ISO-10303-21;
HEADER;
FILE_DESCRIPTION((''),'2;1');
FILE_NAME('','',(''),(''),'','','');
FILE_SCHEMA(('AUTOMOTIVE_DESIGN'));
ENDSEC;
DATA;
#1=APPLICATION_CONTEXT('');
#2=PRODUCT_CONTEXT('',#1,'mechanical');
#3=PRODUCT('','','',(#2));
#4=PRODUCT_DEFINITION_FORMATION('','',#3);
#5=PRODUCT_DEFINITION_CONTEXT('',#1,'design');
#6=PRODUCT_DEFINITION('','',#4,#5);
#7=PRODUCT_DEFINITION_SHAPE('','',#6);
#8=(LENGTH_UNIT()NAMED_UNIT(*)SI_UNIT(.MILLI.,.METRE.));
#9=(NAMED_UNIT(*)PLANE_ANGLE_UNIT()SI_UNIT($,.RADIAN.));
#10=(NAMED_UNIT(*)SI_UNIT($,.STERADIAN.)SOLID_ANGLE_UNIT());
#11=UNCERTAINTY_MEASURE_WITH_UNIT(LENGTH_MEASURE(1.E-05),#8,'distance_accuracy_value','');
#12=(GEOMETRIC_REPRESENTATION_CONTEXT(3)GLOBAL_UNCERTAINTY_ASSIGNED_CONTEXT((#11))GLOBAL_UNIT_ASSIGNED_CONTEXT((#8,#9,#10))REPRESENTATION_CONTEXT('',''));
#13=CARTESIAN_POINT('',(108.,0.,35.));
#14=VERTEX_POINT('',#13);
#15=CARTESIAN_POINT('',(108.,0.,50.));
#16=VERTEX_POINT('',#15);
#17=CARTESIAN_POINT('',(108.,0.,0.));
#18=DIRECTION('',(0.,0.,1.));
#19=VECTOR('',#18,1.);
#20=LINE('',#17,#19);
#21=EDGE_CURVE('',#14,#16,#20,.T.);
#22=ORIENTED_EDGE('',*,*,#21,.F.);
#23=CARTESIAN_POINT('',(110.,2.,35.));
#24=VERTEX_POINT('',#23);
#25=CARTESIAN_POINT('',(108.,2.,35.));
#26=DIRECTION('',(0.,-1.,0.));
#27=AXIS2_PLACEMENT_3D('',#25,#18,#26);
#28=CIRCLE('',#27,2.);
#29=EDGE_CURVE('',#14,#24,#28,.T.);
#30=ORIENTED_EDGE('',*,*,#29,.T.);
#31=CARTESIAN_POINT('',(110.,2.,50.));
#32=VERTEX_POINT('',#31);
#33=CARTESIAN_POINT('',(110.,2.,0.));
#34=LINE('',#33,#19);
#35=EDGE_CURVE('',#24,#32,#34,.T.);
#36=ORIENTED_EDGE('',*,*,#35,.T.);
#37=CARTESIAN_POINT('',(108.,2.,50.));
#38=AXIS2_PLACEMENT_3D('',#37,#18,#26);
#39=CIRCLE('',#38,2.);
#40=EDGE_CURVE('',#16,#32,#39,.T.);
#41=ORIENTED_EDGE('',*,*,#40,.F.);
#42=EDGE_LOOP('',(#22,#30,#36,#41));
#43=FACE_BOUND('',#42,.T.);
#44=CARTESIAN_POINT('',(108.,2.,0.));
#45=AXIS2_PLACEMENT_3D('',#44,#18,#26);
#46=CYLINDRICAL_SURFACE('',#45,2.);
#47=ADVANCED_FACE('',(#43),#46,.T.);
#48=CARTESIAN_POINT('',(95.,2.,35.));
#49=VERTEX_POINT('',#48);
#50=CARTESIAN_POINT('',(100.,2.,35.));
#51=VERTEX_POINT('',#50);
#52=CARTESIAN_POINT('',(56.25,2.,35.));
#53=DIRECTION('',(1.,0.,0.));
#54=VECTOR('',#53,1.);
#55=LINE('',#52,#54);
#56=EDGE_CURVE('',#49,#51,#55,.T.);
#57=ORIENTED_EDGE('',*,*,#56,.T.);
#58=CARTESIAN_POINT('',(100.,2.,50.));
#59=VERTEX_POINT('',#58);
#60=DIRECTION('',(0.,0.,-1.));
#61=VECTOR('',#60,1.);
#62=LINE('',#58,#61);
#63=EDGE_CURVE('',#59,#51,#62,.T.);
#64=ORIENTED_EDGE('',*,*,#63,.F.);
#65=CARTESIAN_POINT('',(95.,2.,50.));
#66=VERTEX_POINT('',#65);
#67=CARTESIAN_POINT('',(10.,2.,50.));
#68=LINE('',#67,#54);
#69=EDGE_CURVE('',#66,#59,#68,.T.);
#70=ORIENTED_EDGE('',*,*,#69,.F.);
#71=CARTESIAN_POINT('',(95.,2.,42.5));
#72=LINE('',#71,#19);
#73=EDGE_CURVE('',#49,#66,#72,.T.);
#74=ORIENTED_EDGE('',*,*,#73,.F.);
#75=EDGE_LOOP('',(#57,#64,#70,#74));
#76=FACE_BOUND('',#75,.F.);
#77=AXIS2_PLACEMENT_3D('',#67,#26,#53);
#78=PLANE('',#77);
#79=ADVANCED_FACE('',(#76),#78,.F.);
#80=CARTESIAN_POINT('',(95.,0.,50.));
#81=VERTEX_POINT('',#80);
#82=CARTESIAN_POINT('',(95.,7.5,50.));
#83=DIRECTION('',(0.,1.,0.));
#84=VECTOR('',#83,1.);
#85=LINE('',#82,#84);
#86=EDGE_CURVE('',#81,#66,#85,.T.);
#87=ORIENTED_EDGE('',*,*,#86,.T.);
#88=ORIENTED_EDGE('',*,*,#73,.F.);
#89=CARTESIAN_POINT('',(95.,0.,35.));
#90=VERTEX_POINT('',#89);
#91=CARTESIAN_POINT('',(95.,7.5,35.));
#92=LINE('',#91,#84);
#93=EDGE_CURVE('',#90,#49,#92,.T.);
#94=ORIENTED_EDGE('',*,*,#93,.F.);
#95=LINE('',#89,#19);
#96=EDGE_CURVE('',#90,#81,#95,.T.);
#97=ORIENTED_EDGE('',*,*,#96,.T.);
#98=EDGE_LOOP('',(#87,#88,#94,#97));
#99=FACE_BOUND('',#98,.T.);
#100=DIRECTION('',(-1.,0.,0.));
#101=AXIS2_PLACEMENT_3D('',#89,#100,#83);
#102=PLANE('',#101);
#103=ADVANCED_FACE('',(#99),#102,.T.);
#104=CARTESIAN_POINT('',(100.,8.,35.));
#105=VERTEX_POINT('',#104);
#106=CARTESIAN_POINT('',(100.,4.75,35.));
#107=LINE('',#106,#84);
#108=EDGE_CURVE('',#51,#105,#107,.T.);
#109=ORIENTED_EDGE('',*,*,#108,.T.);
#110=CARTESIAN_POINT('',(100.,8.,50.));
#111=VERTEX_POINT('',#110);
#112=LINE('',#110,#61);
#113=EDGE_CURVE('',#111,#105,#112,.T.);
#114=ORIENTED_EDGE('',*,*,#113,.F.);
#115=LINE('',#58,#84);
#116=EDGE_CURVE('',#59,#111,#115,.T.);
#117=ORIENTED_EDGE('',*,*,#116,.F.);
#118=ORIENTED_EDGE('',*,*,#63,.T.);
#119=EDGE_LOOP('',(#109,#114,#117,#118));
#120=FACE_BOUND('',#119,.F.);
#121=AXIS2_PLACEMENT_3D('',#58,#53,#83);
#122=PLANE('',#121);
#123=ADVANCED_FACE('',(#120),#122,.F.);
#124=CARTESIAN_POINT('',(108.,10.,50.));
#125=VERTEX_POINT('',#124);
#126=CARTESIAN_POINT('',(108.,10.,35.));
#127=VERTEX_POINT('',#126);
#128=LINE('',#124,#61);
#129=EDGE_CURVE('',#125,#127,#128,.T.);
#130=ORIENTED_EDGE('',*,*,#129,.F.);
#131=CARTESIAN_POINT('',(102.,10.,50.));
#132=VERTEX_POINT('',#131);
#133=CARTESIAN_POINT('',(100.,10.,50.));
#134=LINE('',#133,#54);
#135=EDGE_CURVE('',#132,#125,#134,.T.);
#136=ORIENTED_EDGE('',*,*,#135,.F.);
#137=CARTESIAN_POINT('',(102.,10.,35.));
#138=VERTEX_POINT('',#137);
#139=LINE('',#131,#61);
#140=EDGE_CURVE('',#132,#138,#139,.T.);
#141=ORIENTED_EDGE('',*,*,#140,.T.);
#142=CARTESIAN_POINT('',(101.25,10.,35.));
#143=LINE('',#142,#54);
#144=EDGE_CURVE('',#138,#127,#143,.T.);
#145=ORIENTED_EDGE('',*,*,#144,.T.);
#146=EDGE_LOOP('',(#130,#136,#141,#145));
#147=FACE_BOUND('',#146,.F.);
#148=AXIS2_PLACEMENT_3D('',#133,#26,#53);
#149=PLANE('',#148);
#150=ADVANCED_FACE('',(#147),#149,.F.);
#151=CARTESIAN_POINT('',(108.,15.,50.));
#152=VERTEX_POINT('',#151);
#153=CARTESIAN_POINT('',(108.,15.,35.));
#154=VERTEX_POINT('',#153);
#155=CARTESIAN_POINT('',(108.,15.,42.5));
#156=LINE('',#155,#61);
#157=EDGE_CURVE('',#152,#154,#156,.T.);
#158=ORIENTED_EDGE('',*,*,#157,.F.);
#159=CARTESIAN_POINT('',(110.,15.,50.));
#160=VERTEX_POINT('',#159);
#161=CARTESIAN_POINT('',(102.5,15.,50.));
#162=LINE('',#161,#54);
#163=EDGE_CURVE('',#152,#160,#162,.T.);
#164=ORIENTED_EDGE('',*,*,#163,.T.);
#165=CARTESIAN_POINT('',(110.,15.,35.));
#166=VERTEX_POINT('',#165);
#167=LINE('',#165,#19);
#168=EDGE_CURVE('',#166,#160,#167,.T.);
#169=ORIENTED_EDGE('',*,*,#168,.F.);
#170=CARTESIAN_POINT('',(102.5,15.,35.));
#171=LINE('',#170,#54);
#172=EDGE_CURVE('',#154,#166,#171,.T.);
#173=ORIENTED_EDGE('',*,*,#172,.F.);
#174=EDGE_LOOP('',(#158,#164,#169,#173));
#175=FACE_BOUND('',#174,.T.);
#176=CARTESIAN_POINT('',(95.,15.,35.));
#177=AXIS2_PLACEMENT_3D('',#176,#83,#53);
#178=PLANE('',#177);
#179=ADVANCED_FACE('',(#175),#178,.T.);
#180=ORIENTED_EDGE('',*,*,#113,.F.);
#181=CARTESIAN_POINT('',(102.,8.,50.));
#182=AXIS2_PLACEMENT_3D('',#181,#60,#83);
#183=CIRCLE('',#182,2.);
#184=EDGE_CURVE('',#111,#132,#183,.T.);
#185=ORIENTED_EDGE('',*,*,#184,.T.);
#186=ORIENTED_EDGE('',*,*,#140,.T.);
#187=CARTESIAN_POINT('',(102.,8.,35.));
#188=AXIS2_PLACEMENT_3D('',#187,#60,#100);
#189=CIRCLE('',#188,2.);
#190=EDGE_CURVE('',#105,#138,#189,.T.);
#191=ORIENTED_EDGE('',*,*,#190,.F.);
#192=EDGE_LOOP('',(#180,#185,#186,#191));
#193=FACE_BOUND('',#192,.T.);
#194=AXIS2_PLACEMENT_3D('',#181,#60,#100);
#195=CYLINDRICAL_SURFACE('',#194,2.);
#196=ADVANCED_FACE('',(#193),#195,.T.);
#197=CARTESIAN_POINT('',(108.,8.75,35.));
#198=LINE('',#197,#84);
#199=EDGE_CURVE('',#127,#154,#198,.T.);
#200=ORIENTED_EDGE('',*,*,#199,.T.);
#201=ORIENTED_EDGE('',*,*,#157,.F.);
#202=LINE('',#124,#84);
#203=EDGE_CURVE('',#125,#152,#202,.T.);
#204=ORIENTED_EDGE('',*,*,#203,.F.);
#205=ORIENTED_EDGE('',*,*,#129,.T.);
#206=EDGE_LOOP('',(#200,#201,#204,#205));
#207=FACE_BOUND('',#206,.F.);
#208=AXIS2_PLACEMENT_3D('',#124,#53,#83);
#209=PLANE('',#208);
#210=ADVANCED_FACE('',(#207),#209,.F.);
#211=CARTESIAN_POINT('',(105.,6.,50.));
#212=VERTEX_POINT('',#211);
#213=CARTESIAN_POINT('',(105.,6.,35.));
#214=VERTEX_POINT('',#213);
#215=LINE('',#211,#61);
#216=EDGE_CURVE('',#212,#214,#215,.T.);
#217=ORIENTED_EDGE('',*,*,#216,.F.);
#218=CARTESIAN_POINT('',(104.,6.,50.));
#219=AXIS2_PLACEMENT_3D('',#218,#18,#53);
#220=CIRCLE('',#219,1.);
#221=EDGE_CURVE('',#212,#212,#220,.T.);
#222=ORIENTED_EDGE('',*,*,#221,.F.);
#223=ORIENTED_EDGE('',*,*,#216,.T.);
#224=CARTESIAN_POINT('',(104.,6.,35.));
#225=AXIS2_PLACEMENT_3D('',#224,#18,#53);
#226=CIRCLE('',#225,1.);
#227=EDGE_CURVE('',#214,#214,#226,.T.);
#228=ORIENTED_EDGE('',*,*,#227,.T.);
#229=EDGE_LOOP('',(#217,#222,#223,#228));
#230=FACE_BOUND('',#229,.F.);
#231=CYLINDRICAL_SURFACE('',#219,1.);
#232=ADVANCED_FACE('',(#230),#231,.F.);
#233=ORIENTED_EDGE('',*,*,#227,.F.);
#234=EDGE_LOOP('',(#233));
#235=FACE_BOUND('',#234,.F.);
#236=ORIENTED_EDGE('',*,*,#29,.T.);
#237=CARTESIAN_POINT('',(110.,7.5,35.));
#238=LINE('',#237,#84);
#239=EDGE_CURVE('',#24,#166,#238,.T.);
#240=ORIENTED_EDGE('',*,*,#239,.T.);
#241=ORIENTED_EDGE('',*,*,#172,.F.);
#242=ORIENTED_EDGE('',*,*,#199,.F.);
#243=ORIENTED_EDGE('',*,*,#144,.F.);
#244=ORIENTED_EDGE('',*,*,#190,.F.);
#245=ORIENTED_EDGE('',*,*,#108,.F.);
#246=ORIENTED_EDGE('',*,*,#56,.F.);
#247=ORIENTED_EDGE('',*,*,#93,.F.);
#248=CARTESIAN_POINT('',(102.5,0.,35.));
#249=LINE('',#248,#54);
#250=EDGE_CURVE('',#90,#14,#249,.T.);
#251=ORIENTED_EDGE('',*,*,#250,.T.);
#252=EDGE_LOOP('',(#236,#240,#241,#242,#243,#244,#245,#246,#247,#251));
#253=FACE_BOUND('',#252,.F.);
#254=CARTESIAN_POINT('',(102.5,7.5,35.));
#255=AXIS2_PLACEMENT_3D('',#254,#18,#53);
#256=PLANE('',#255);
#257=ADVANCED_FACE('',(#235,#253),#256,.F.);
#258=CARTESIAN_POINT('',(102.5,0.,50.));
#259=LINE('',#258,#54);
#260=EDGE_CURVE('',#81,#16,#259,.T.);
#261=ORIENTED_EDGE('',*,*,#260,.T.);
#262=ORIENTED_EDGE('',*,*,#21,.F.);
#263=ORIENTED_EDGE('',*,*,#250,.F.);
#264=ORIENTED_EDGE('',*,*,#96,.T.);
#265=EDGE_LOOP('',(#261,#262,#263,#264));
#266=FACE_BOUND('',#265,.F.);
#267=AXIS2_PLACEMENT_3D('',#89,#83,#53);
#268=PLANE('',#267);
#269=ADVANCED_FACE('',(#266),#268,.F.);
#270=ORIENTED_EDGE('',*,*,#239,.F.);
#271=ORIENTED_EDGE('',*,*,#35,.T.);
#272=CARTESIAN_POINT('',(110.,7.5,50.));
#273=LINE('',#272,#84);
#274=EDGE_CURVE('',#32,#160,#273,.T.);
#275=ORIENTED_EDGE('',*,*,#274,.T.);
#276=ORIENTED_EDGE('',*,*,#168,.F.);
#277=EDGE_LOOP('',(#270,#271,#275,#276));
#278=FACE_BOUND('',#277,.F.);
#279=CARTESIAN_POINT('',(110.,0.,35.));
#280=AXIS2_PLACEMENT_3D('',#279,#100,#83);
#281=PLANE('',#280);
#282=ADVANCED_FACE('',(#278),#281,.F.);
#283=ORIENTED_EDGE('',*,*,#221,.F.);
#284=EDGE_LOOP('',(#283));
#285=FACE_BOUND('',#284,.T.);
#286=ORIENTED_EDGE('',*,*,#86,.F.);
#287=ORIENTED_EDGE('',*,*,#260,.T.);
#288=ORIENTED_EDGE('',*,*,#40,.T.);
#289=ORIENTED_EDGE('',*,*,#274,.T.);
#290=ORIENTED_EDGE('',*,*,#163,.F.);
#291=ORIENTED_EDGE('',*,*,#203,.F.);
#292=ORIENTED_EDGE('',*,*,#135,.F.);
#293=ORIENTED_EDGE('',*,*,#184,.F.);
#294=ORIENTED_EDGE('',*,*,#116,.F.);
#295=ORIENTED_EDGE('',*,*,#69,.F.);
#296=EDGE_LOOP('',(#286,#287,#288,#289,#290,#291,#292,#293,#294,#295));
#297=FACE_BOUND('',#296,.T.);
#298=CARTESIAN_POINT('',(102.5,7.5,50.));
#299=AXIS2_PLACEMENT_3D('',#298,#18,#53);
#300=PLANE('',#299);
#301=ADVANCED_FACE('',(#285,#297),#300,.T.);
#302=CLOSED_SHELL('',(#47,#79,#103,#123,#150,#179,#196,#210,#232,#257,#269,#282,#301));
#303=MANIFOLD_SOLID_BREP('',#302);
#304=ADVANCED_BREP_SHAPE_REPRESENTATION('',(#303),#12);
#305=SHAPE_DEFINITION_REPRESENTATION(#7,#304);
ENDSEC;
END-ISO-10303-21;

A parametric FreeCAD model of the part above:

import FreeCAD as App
import Part
import Sketcher

V = App.Vector
Q = App.Units.Quantity


def edges_at(feature, points):
    """Names of the edges that pass closest to the given points."""
    edges = feature.Shape.Edges
    near = lambda p: min(range(len(edges)), key=lambda i: edges[i].distToShape(Part.Vertex(*p))[0])
    return sorted({f"Edge{near(p) + 1}" for p in points})

doc = App.newDocument("Part")
params = doc.addObject("Spreadsheet::Sheet", "Params")
for row, (alias, value) in enumerate([
    ("sketch1_width", "110 mm"),
    ("sketch1_height", "80 mm"),
    ("pad1_length", "50 mm"),
    ("sketch2_diameter", "2 mm"),
    ("sketch2_width", "8 mm"),
    ("sketch2_width2", "90 mm"),
    ("sketch2_height", "60 mm"),
    ("pocket1_length", "48 mm"),
    ("fillet_radius", "2 mm"),
    ("fillet2_radius", "2 mm"),
    ("sketch3_diameter", "5.1 mm"),
    ("sketch3_width", "11.5 mm"),
    ("sketch3_height", "19.1 mm"),
    ("pocket2_length", "5 mm"),
    ("sketch4_diameter", "5.1 mm"),
    ("pocket3_length", "5 mm"),
    ("sketch5_width", "15 mm"),
    ("pad2_length", "15 mm"),
], start=1):
    params.set(f"A{row}", alias)
    params.set(f"B{row}", "=" + value)
    params.setAlias(f"B{row}", alias)

body = doc.addObject("PartDesign::Body", "Body")

# Sketch on XY plane
sketch1 = body.newObject("Sketcher::SketchObject", "Sketch")
sketch1.AttachmentSupport = (doc.getObject("XY_Plane"), [""])
sketch1.MapMode = "FlatFace"
sketch1.addGeometry(Part.LineSegment(V(0, 80, 0), V(0, 0, 0)), False)
sketch1.addGeometry(Part.LineSegment(V(0, 0, 0), V(110, 0, 0)), False)
sketch1.addGeometry(Part.LineSegment(V(110, 0, 0), V(110, 80, 0)), False)
sketch1.addGeometry(Part.LineSegment(V(110, 80, 0), V(0, 80, 0)), False)
sketch1.addConstraint(Sketcher.Constraint("Coincident", 0, 2, 1, 1))
sketch1.addConstraint(Sketcher.Constraint("Coincident", 1, 2, 2, 1))
sketch1.addConstraint(Sketcher.Constraint("Coincident", 2, 2, 3, 1))
sketch1.addConstraint(Sketcher.Constraint("Coincident", 3, 2, 0, 1))
sketch1.addConstraint(Sketcher.Constraint("Vertical", 0))
sketch1.addConstraint(Sketcher.Constraint("Horizontal", 1))
sketch1.addConstraint(Sketcher.Constraint("Vertical", 2))
sketch1.addConstraint(Sketcher.Constraint("Horizontal", 3))
sketch1.addConstraint(Sketcher.Constraint("Coincident", 0, 2, -1, 1))
sketch1.addConstraint(Sketcher.Constraint("DistanceX", 1, 1, 1, 2, Q("110 mm")))
sketch1.addConstraint(Sketcher.Constraint("DistanceY", 0, 2, 0, 1, Q("80 mm")))
sketch1.setExpression("Constraints[9]", "Params.sketch1_width")
sketch1.setExpression("Constraints[10]", "Params.sketch1_height")
pad1 = body.newObject("PartDesign::Pad", "Pad")
pad1.Profile = sketch1
pad1.setExpression("Length", "Params.pad1_length")

# Sketch on XY plane
sketch2 = body.newObject("Sketcher::SketchObject", "Sketch001")
sketch2.AttachmentSupport = (doc.getObject("XY_Plane"), [""])
sketch2.MapMode = "FlatFace"
sketch2.AttachmentOffset = App.Placement(V(0, 0, 50), App.Rotation())
sketch2.addGeometry(Part.Circle(V(6, 74, 0), V(0, 0, 1), 1), False)
sketch2.addGeometry(Part.Circle(V(104, 74, 0), V(0, 0, 1), 1), False)
sketch2.addGeometry(Part.Circle(V(104, 6, 0), V(0, 0, 1), 1), False)
sketch2.addGeometry(Part.Circle(V(6, 6, 0), V(0, 0, 1), 1), False)
sketch2.addGeometry(Part.LineSegment(V(2, 10, 0), V(10, 10, 0)), False)
sketch2.addGeometry(Part.LineSegment(V(10, 10, 0), V(10, 2, 0)), False)
sketch2.addGeometry(Part.LineSegment(V(10, 2, 0), V(100, 2, 0)), False)
sketch2.addGeometry(Part.LineSegment(V(100, 2, 0), V(100, 10, 0)), False)
sketch2.addGeometry(Part.LineSegment(V(100, 10, 0), V(108, 10, 0)), False)
sketch2.addGeometry(Part.LineSegment(V(108, 10, 0), V(108, 70, 0)), False)
sketch2.addGeometry(Part.LineSegment(V(108, 70, 0), V(100, 70, 0)), False)
sketch2.addGeometry(Part.LineSegment(V(100, 70, 0), V(100, 78, 0)), False)
sketch2.addGeometry(Part.LineSegment(V(100, 78, 0), V(10, 78, 0)), False)
sketch2.addGeometry(Part.LineSegment(V(10, 78, 0), V(10, 70, 0)), False)
sketch2.addGeometry(Part.LineSegment(V(10, 70, 0), V(2, 70, 0)), False)
sketch2.addGeometry(Part.LineSegment(V(2, 70, 0), V(2, 10, 0)), False)
sketch2.addConstraint(Sketcher.Constraint("Coincident", 4, 2, 5, 1))
sketch2.addConstraint(Sketcher.Constraint("Coincident", 5, 2, 6, 1))
sketch2.addConstraint(Sketcher.Constraint("Coincident", 6, 2, 7, 1))
sketch2.addConstraint(Sketcher.Constraint("Coincident", 7, 2, 8, 1))
sketch2.addConstraint(Sketcher.Constraint("Coincident", 8, 2, 9, 1))
sketch2.addConstraint(Sketcher.Constraint("Coincident", 9, 2, 10, 1))
sketch2.addConstraint(Sketcher.Constraint("Coincident", 10, 2, 11, 1))
sketch2.addConstraint(Sketcher.Constraint("Coincident", 11, 2, 12, 1))
sketch2.addConstraint(Sketcher.Constraint("Coincident", 12, 2, 13, 1))
sketch2.addConstraint(Sketcher.Constraint("Coincident", 13, 2, 14, 1))
sketch2.addConstraint(Sketcher.Constraint("Coincident", 14, 2, 15, 1))
sketch2.addConstraint(Sketcher.Constraint("Coincident", 15, 2, 4, 1))
sketch2.addConstraint(Sketcher.Constraint("Horizontal", 4))
sketch2.addConstraint(Sketcher.Constraint("Vertical", 5))
sketch2.addConstraint(Sketcher.Constraint("Horizontal", 6))
sketch2.addConstraint(Sketcher.Constraint("Vertical", 7))
sketch2.addConstraint(Sketcher.Constraint("Horizontal", 8))
sketch2.addConstraint(Sketcher.Constraint("Vertical", 9))
sketch2.addConstraint(Sketcher.Constraint("Horizontal", 10))
sketch2.addConstraint(Sketcher.Constraint("Vertical", 11))
sketch2.addConstraint(Sketcher.Constraint("Horizontal", 12))
sketch2.addConstraint(Sketcher.Constraint("Vertical", 13))
sketch2.addConstraint(Sketcher.Constraint("Horizontal", 14))
sketch2.addConstraint(Sketcher.Constraint("Vertical", 15))
sketch2.addConstraint(Sketcher.Constraint("Equal", 0, 1))
sketch2.addConstraint(Sketcher.Constraint("Equal", 1, 2))
sketch2.addConstraint(Sketcher.Constraint("Equal", 2, 3))
sketch2.addConstraint(Sketcher.Constraint("Horizontal", 0, 3, 1, 3))
sketch2.addConstraint(Sketcher.Constraint("Horizontal", 2, 3, 3, 3))
sketch2.addConstraint(Sketcher.Constraint("Horizontal", 4, 2, 7, 2))
sketch2.addConstraint(Sketcher.Constraint("Horizontal", 10, 2, 13, 2))
sketch2.addConstraint(Sketcher.Constraint("Vertical", 1, 3, 2, 3))
sketch2.addConstraint(Sketcher.Constraint("Vertical", 0, 3, 3, 3))
sketch2.addConstraint(Sketcher.Constraint("Vertical", 7, 2, 10, 2))
sketch2.addConstraint(Sketcher.Constraint("Vertical", 5, 2, 12, 2))
sketch2.addConstraint(Sketcher.Constraint("Equal", 4, 8))
sketch2.addConstraint(Sketcher.Constraint("Equal", 14, 5))
sketch2.addConstraint(Sketcher.Constraint("Equal", 7, 11))
sketch2.addConstraint(Sketcher.Constraint("Diameter", 0, Q("2 mm")))
sketch2.addConstraint(Sketcher.Constraint("DistanceX", 4, 1, 4, 2, Q("8 mm")))
sketch2.addConstraint(Sketcher.Constraint("DistanceX", 6, 1, 6, 2, Q("90 mm")))
sketch2.addConstraint(Sketcher.Constraint("DistanceY", 9, 1, 9, 2, Q("60 mm")))
sketch2.addConstraint(Sketcher.Constraint("DistanceX", -1, 1, 0, 3, Q("6 mm")))
sketch2.addConstraint(Sketcher.Constraint("DistanceY", -1, 1, 0, 3, Q("74 mm")))
sketch2.addConstraint(Sketcher.Constraint("DistanceX", -1, 1, 1, 3, Q("104 mm")))
sketch2.addConstraint(Sketcher.Constraint("DistanceY", -1, 1, 2, 3, Q("6 mm")))
sketch2.addConstraint(Sketcher.Constraint("DistanceX", -1, 1, 4, 2, Q("10 mm")))
sketch2.addConstraint(Sketcher.Constraint("DistanceY", -1, 1, 4, 2, Q("10 mm")))
sketch2.setExpression("Constraints[38]", "Params.sketch2_diameter")
sketch2.setExpression("Constraints[39]", "Params.sketch2_width")
sketch2.setExpression("Constraints[40]", "Params.sketch2_width2")
sketch2.setExpression("Constraints[41]", "Params.sketch2_height")
pocket1 = body.newObject("PartDesign::Pocket", "Pocket")
pocket1.Profile = sketch2
pocket1.setExpression("Length", "Params.pocket1_length")
doc.recompute()

fillet = body.newObject("PartDesign::Fillet", "Fillet")
fillet.Base = (pocket1, edges_at(pocket1, [
    (0, 80, 25),
    (0, 40, 0),
    (0, 0, 25),
    (55, 0, 0),
    (110, 0, 25),
    (110, 80, 25),
    (110, 40, 0),
    (55, 80, 0),
]))
fillet.setExpression("Radius", "Params.fillet_radius")
doc.recompute()

fillet2 = body.newObject("PartDesign::Fillet", "Fillet001")
fillet2.Base = (fillet, edges_at(fillet, [
    (100, 10, 26),
    (100, 70, 26),
    (10, 70, 26),
    (10, 10, 26),
]))
fillet2.setExpression("Radius", "Params.fillet2_radius")

# Sketch on YZ plane
sketch3 = body.newObject("Sketcher::SketchObject", "Sketch002")
sketch3.AttachmentSupport = (doc.getObject("YZ_Plane"), [""])
sketch3.MapMode = "FlatFace"
sketch3.AttachmentOffset = App.Placement(V(0, 0, 110), App.Rotation())
sketch3.addGeometry(Part.Circle(V(15, 27.5, 0), V(0, 0, 1), 2.5), False)
sketch3.addGeometry(Part.LineSegment(V(23, 37, 0), V(23, 17.9, 0)), False)
sketch3.addGeometry(Part.LineSegment(V(23, 17.9, 0), V(34.5, 17.9, 0)), False)
sketch3.addGeometry(Part.LineSegment(V(34.5, 17.9, 0), V(34.5, 37, 0)), False)
sketch3.addGeometry(Part.LineSegment(V(34.5, 37, 0), V(23, 37, 0)), False)
sketch3.addConstraint(Sketcher.Constraint("Coincident", 1, 2, 2, 1))
sketch3.addConstraint(Sketcher.Constraint("Coincident", 2, 2, 3, 1))
sketch3.addConstraint(Sketcher.Constraint("Coincident", 3, 2, 4, 1))
sketch3.addConstraint(Sketcher.Constraint("Coincident", 4, 2, 1, 1))
sketch3.addConstraint(Sketcher.Constraint("Vertical", 1))
sketch3.addConstraint(Sketcher.Constraint("Horizontal", 2))
sketch3.addConstraint(Sketcher.Constraint("Vertical", 3))
sketch3.addConstraint(Sketcher.Constraint("Horizontal", 4))
sketch3.addConstraint(Sketcher.Constraint("Diameter", 0, Q("5.1 mm")))
sketch3.addConstraint(Sketcher.Constraint("DistanceX", 2, 1, 2, 2, Q("11.5 mm")))
sketch3.addConstraint(Sketcher.Constraint("DistanceY", 1, 2, 1, 1, Q("19.1 mm")))
sketch3.addConstraint(Sketcher.Constraint("DistanceX", -1, 1, 0, 3, Q("15 mm")))
sketch3.addConstraint(Sketcher.Constraint("DistanceX", -1, 1, 1, 2, Q("23 mm")))
sketch3.addConstraint(Sketcher.Constraint("DistanceY", -1, 1, 0, 3, Q("27.5 mm")))
sketch3.addConstraint(Sketcher.Constraint("DistanceY", -1, 1, 1, 2, Q("17.95 mm")))
sketch3.setExpression("Constraints[8]", "Params.sketch3_diameter")
sketch3.setExpression("Constraints[9]", "Params.sketch3_width")
sketch3.setExpression("Constraints[10]", "Params.sketch3_height")
pocket2 = body.newObject("PartDesign::Pocket", "Pocket001")
pocket2.Profile = sketch3
pocket2.setExpression("Length", "Params.pocket2_length")

# Sketch on XZ plane
sketch4 = body.newObject("Sketcher::SketchObject", "Sketch003")
sketch4.AttachmentSupport = (doc.getObject("XZ_Plane"), [""])
sketch4.MapMode = "FlatFace"
sketch4.addGeometry(Part.Circle(V(95, 27.5, 0), V(0, 0, 1), 2.5), False)
sketch4.addConstraint(Sketcher.Constraint("Diameter", 0, Q("5.1 mm")))
sketch4.addConstraint(Sketcher.Constraint("DistanceX", -1, 1, 0, 3, Q("95 mm")))
sketch4.addConstraint(Sketcher.Constraint("DistanceY", -1, 1, 0, 3, Q("27.5 mm")))
sketch4.setExpression("Constraints[0]", "Params.sketch4_diameter")
pocket3 = body.newObject("PartDesign::Pocket", "Pocket002")
pocket3.Profile = sketch4
pocket3.setExpression("Length", "Params.pocket3_length")
body2 = doc.addObject("PartDesign::Body", "Body001")

# Sketch on XY plane
sketch5 = body2.newObject("Sketcher::SketchObject", "Sketch004")
sketch5.AttachmentSupport = (doc.getObject("XY_Plane001"), [""])
sketch5.MapMode = "FlatFace"
sketch5.AttachmentOffset = App.Placement(V(0, 0, 35), App.Rotation())
sketch5.addGeometry(Part.LineSegment(V(95, 15, 0), V(95, 0, 0)), False)
sketch5.addGeometry(Part.LineSegment(V(95, 0, 0), V(110, 0, 0)), False)
sketch5.addGeometry(Part.LineSegment(V(110, 0, 0), V(110, 15, 0)), False)
sketch5.addGeometry(Part.LineSegment(V(110, 15, 0), V(95, 15, 0)), False)
sketch5.addConstraint(Sketcher.Constraint("Coincident", 0, 2, 1, 1))
sketch5.addConstraint(Sketcher.Constraint("Coincident", 1, 2, 2, 1))
sketch5.addConstraint(Sketcher.Constraint("Coincident", 2, 2, 3, 1))
sketch5.addConstraint(Sketcher.Constraint("Coincident", 3, 2, 0, 1))
sketch5.addConstraint(Sketcher.Constraint("Vertical", 0))
sketch5.addConstraint(Sketcher.Constraint("Horizontal", 1))
sketch5.addConstraint(Sketcher.Constraint("Vertical", 2))
sketch5.addConstraint(Sketcher.Constraint("Horizontal", 3))
sketch5.addConstraint(Sketcher.Constraint("PointOnObject", 0, 2, -1))
sketch5.addConstraint(Sketcher.Constraint("Equal", 3, 0))
sketch5.addConstraint(Sketcher.Constraint("DistanceX", 1, 1, 1, 2, Q("15 mm")))
sketch5.addConstraint(Sketcher.Constraint("DistanceX", -1, 1, 0, 2, Q("95 mm")))
sketch5.setExpression("Constraints[10]", "Params.sketch5_width")
pad2 = body2.newObject("PartDesign::Pad", "Pad001")
pad2.Profile = sketch5
pad2.setExpression("Length", "Params.pad2_length")
doc.recompute()

boolean = body2.newObject("PartDesign::Boolean", "Boolean")
boolean.Type = "Common"
boolean.addObjects([body])

doc.recompute()
